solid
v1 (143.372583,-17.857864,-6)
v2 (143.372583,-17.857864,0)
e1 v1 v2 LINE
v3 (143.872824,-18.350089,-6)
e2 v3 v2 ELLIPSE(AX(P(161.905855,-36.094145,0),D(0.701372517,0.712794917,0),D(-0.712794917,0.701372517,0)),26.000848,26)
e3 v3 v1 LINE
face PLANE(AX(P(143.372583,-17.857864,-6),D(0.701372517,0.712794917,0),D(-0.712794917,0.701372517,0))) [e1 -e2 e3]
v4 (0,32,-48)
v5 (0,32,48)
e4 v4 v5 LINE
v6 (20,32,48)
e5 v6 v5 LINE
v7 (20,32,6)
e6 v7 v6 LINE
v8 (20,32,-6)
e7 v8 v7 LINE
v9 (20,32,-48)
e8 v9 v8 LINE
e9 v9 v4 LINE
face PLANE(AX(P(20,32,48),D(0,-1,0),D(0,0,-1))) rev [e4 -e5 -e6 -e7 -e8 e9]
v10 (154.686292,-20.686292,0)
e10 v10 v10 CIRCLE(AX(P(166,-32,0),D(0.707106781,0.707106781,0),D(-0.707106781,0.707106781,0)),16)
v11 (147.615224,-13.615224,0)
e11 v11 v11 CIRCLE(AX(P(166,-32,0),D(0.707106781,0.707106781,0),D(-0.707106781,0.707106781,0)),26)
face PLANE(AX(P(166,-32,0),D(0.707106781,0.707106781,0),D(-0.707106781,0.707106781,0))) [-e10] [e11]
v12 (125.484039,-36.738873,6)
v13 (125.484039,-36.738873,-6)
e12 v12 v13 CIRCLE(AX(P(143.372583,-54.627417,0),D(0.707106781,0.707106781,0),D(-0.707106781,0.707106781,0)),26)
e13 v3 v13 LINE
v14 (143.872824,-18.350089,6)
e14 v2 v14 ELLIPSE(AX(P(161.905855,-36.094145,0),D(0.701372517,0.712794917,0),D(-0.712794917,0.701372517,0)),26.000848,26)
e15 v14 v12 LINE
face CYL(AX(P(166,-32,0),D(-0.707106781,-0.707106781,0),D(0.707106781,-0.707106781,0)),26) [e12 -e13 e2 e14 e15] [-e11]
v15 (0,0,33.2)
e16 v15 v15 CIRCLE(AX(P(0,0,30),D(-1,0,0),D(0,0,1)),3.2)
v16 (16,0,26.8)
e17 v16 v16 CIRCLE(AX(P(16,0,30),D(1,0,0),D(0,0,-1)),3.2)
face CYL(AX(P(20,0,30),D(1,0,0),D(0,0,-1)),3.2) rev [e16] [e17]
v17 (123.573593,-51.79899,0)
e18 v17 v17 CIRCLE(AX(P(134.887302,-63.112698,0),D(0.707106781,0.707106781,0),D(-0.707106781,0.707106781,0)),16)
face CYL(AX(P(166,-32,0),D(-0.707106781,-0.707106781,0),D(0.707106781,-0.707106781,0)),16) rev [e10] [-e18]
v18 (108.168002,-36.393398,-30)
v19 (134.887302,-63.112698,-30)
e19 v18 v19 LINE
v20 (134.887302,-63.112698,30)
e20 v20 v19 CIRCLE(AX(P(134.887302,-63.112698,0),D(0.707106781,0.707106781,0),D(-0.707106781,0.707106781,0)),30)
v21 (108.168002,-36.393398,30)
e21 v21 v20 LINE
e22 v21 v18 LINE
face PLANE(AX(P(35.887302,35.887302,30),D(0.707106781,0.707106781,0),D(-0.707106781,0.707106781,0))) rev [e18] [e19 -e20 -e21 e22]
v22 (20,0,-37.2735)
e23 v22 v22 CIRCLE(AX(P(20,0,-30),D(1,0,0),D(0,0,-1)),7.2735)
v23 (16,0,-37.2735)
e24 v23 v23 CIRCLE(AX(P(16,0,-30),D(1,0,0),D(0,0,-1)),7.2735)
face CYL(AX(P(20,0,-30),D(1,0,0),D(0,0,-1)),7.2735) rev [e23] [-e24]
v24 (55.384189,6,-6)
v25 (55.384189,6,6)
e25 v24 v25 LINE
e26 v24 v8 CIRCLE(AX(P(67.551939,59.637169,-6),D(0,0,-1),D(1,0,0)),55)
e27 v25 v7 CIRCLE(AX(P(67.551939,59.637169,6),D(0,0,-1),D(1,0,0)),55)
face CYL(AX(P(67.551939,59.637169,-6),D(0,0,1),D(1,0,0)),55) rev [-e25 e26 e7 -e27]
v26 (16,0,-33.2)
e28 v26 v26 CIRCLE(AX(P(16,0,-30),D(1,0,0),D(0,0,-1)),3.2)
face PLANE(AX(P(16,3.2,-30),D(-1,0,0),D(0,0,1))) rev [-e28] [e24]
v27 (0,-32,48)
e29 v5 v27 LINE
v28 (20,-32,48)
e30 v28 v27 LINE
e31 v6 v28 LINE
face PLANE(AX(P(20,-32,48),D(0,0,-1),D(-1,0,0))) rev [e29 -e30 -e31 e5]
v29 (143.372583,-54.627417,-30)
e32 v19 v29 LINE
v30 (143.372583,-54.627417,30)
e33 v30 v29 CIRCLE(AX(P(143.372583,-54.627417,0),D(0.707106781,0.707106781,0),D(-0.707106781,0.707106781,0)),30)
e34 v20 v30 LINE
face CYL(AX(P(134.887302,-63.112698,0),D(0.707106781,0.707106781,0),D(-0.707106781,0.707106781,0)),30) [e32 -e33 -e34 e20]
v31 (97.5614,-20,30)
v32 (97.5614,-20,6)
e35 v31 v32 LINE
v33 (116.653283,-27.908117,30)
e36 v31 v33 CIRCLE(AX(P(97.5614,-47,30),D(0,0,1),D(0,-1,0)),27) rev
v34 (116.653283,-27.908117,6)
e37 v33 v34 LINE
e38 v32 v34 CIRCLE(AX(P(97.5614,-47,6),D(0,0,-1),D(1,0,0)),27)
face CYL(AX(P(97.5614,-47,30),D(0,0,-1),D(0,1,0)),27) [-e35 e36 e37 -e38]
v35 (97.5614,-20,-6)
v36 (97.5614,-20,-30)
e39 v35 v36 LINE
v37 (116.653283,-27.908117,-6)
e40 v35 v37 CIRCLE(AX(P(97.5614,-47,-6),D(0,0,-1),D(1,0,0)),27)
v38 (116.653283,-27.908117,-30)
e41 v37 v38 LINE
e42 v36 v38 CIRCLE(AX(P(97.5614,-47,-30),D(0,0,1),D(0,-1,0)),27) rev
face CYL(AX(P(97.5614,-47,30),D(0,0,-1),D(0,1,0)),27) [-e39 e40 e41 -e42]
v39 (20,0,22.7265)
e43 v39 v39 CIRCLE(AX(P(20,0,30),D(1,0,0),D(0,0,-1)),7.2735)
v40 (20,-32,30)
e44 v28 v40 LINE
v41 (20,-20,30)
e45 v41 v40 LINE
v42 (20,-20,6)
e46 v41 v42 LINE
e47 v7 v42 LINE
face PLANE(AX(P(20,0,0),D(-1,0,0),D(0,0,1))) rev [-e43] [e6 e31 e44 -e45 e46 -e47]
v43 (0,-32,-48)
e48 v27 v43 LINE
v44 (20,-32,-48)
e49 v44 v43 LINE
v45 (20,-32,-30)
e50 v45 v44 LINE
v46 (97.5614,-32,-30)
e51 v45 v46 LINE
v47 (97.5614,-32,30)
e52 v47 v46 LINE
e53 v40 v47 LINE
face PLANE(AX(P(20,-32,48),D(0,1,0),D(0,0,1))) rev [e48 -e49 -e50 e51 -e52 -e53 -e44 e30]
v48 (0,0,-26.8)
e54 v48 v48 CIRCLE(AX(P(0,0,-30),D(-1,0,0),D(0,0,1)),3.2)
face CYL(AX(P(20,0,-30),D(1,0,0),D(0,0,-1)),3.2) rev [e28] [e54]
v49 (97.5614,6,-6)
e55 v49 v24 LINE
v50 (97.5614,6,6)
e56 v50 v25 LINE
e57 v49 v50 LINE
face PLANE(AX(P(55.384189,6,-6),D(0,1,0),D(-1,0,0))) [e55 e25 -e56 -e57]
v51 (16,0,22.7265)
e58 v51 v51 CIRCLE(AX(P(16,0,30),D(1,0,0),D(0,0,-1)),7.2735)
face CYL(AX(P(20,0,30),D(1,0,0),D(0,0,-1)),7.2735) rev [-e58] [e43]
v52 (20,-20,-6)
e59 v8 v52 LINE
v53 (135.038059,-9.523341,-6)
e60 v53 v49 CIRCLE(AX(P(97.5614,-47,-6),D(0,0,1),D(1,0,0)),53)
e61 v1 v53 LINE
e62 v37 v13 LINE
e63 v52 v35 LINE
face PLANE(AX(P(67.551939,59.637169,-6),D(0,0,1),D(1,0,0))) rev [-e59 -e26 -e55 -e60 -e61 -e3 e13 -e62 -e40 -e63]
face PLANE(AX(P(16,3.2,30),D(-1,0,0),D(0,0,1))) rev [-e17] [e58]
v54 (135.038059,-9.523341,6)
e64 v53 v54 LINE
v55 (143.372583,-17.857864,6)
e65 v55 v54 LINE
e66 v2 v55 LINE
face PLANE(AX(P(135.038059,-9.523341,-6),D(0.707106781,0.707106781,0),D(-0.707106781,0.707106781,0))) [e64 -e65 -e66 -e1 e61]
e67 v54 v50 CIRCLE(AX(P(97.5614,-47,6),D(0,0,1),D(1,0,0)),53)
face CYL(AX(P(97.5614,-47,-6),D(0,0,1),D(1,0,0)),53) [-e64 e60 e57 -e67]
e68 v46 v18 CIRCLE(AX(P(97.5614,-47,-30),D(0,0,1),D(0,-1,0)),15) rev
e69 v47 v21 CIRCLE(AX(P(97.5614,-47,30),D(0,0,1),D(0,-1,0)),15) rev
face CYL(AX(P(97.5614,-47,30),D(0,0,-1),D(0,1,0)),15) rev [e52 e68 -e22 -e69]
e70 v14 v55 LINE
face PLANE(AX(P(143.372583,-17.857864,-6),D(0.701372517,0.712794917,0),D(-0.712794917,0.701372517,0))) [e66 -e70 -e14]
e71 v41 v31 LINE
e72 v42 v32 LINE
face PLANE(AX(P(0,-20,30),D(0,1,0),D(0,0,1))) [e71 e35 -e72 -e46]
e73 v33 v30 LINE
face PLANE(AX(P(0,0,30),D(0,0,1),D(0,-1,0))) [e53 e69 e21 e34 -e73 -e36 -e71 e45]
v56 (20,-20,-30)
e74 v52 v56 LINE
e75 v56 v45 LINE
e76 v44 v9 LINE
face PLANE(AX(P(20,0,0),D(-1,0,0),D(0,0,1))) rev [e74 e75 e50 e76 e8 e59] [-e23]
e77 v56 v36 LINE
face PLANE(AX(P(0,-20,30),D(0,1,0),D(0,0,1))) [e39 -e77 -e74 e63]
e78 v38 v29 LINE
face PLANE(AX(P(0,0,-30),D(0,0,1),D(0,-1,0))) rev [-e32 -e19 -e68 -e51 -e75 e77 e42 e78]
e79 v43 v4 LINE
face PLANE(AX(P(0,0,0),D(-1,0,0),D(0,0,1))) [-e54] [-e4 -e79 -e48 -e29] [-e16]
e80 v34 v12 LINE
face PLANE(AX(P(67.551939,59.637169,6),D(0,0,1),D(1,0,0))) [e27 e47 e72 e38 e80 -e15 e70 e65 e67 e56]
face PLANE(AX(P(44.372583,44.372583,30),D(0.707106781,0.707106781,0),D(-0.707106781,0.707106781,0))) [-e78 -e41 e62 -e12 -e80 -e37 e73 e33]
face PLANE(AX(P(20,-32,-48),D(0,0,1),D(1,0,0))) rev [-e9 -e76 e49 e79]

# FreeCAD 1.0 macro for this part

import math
import FreeCAD as App
import Part
import Sketcher
Q = App.Units.Quantity

doc = App.newDocument("Part")
body = doc.addObject("PartDesign::Body", "Body")

sketch1 = body.newObject("Sketcher::SketchObject", "Sketch")
sketch1.AttachmentSupport = (doc.getObject("YZ_Plane"), [""])
sketch1.MapMode = "FlatFace"
sketch1.addGeometry([
    Part.LineSegment(App.Vector(32, 48, 0), App.Vector(-32, 48, 0)),
    Part.LineSegment(App.Vector(-32, 48, 0), App.Vector(-32, -48, 0)),
    Part.LineSegment(App.Vector(-32, -48, 0), App.Vector(32, -48, 0)),
    Part.LineSegment(App.Vector(32, -48, 0), App.Vector(32, 48, 0)),
], False)
sketch1.addConstraint([
    Sketcher.Constraint("Coincident", 0, 2, 1, 1),
    Sketcher.Constraint("Coincident", 1, 2, 2, 1),
    Sketcher.Constraint("Coincident", 2, 2, 3, 1),
    Sketcher.Constraint("Coincident", 3, 2, 0, 1),
    Sketcher.Constraint("Horizontal", 0),
    Sketcher.Constraint("Vertical", 1),
    Sketcher.Constraint("Horizontal", 2),
    Sketcher.Constraint("Vertical", 3),
    Sketcher.Constraint("Symmetric", 0, 2, 2, 2, -1, 1),
    Sketcher.Constraint("DistanceX", 0, 2, 0, 1, 64.0),
    Sketcher.Constraint("DistanceY", 1, 2, 1, 1, 96.0),
])
pad1 = body.newObject("PartDesign::Pad", "Pad")
pad1.Profile = sketch1
pad1.Length = 20

sketch2 = body.newObject("Sketcher::SketchObject", "Sketch001")
sketch2.AttachmentSupport = (doc.getObject("YZ_Plane"), [""])
sketch2.MapMode = "FlatFace"
sketch2.AttachmentOffset = App.Placement(App.Vector(0, 0, 20), App.Rotation())
sketch2.addGeometry(Part.Circle(App.Vector(0, -30, 0), App.Vector(0, 0, 1), 3.2), False)
sketch2.addConstraint([
    Sketcher.Constraint("PointOnObject", 0, 3, -2),
    Sketcher.Constraint("Diameter", 0, 6.4),
    Sketcher.Constraint("DistanceY", 0, 3, -1, 1, 30.0),
])
doc.recompute()
hole = body.newObject("PartDesign::Hole", "Hole")
hole.Profile = sketch2
hole.ThreadType = "None"
hole.Diameter = 6.4
hole.DepthType = "ThroughAll"
hole.HoleCutType = "Counterbore"
hole.HoleCutDiameter = 14.547
hole.HoleCutDepth = 4
doc.recompute()

mirrored = body.newObject("PartDesign::Mirrored", "Mirrored")
mirrored.Originals = [hole]
mirrored.MirrorPlane = (doc.getObject("XY_Plane"), [""])
body.Tip = mirrored

sketch3 = body.newObject("Sketcher::SketchObject", "Sketch002")
sketch3.AttachmentSupport = (doc.getObject("XY_Plane"), [""])
sketch3.MapMode = "FlatFace"
sketch3.AttachmentOffset = App.Placement(App.Vector(0, 0, -30), App.Rotation())
sketch3.addGeometry([
    Part.ArcOfCircle(Part.Circle(App.Vector(97.5614, -47, 0), App.Vector(0, 0, 1), 27), math.radians(45), math.radians(90)),
    Part.LineSegment(App.Vector(97.5614, -20, 0), App.Vector(20, -20, 0)),
    Part.LineSegment(App.Vector(20, -20, 0), App.Vector(20, -32, 0)),
    Part.LineSegment(App.Vector(20, -32, 0), App.Vector(97.5614, -32, 0)),
    Part.ArcOfCircle(Part.Circle(App.Vector(97.5614, -47, 0), App.Vector(0, 0, 1), 15), math.radians(45), math.radians(90)),
    Part.LineSegment(App.Vector(108.168002, -36.393398, 0), App.Vector(156.100505, -84.325902, 0)),
    Part.LineSegment(App.Vector(156.100505, -84.325902, 0), App.Vector(164.585786, -75.84062, 0)),
    Part.LineSegment(App.Vector(164.585786, -75.84062, 0), App.Vector(116.653283, -27.908117, 0)),
], False)
sketch3.addConstraint([
    Sketcher.Constraint("Tangent", 0, 2, 1, 1),
    Sketcher.Constraint("Coincident", 1, 2, 2, 1),
    Sketcher.Constraint("Coincident", 2, 2, 3, 1),
    Sketcher.Constraint("Tangent", 3, 2, 4, 2),
    Sketcher.Constraint("Tangent", 4, 1, 5, 1),
    Sketcher.Constraint("Coincident", 5, 2, 6, 1),
    Sketcher.Constraint("Coincident", 6, 2, 7, 1),
    Sketcher.Constraint("Tangent", 7, 2, 0, 1),
    Sketcher.Constraint("Horizontal", 1),
    Sketcher.Constraint("Vertical", 2),
    Sketcher.Constraint("Horizontal", 3),
    Sketcher.Constraint("Coincident", 4, 3, 0, 3),
    Sketcher.Constraint("Perpendicular", 5, 6),
    Sketcher.Constraint("Perpendicular", 6, 7),
    Sketcher.Constraint("Radius", 0, 27.0),
    Sketcher.Constraint("Radius", 4, 15.0),
    Sketcher.Constraint("Angle", 5, Q("-45 deg")),
    Sketcher.Constraint("DistanceY", 0, 3, -1, 1, 47.0),
    Sketcher.Constraint("DistanceX", -1, 1, 1, 2, 20.0),
    Sketcher.Constraint("DistanceX", 1, 2, 1, 1, 77.5614),
    Sketcher.Constraint("DistanceY", 5, 2, -1, 1, 84.325902),
])
pad2 = body.newObject("PartDesign::Pad", "Pad001")
pad2.Profile = sketch3
pad2.Length = 60

sketch4 = body.newObject("Sketcher::SketchObject", "Sketch003")
sketch4.Placement = App.Placement(App.Vector(44.372583, 44.372583, 0), App.Rotation(App.Vector(0, 0, -1), App.Vector(-0.707106781, 0.707106781, 0), App.Vector(0.707106781, 0.707106781, 0), "ZXY"))
sketch4.addGeometry([
    Part.LineSegment(App.Vector(-30, -140.007143, 0), App.Vector(-38.734921, -140.007143, 0)),
    Part.LineSegment(App.Vector(-38.734921, -140.007143, 0), App.Vector(-38.734921, -179.207033, 0)),
    Part.LineSegment(App.Vector(-38.734921, -179.207033, 0), App.Vector(30.889897, -179.207033, 0)),
    Part.LineSegment(App.Vector(30.889897, -179.207033, 0), App.Vector(30.889897, -140.007143, 0)),
    Part.LineSegment(App.Vector(30.889897, -140.007143, 0), App.Vector(30, -140.007143, 0)),
    Part.ArcOfCircle(Part.Circle(App.Vector(0, -140.007143, 0), App.Vector(0, 0, 1), 30), math.radians(180), math.radians(360)),
], False)
sketch4.addConstraint([
    Sketcher.Constraint("Coincident", 0, 2, 1, 1),
    Sketcher.Constraint("Coincident", 1, 2, 2, 1),
    Sketcher.Constraint("Coincident", 2, 2, 3, 1),
    Sketcher.Constraint("Coincident", 3, 2, 4, 1),
    Sketcher.Constraint("Coincident", 4, 2, 5, 2),
    Sketcher.Constraint("Coincident", 5, 1, 0, 1),
    Sketcher.Constraint("Horizontal", 0),
    Sketcher.Constraint("Vertical", 1),
    Sketcher.Constraint("Horizontal", 2),
    Sketcher.Constraint("Vertical", 3),
    Sketcher.Constraint("Horizontal", 4),
    Sketcher.Constraint("Symmetric", 4, 2, 5, 1, -2),
    Sketcher.Constraint("Horizontal", 5, 3, 0, 2),
    Sketcher.Constraint("Radius", 5, 30.0),
    Sketcher.Constraint("DistanceX", 0, 2, 0, 1, 8.734921),
    Sketcher.Constraint("DistanceY", 1, 2, 1, 1, 39.19989),
    Sketcher.Constraint("DistanceX", 2, 1, 2, 2, 69.624817),
    Sketcher.Constraint("DistanceY", 5, 3, -1, 1, 140.007143),
])
pocket1 = body.newObject("PartDesign::Pocket", "Pocket")
pocket1.Profile = sketch4
pocket1.Length = 12

sketch5 = body.newObject("Sketcher::SketchObject", "Sketch004")
sketch5.Placement = App.Placement(App.Vector(44.372583, 44.372583, 0), App.Rotation(App.Vector(0, 0, -1), App.Vector(-0.707106781, 0.707106781, 0), App.Vector(0.707106781, 0.707106781, 0), "ZXY"))
sketch5.addGeometry([
    Part.Circle(App.Vector(0, -140.007143, 0), App.Vector(0, 0, 1), 26),
    Part.Circle(App.Vector(0, -140.007143, 0), App.Vector(0, 0, 1), 16),
], False)
sketch5.addConstraint([
    Sketcher.Constraint("Coincident", 1, 3, 0, 3),
    Sketcher.Constraint("PointOnObject", 0, 3, -2),
    Sketcher.Constraint("Diameter", 0, 52.0),
    Sketcher.Constraint("Diameter", 1, 32.0),
    Sketcher.Constraint("DistanceY", 0, 3, -1, 1, 140.007143),
])
pad3 = body.newObject("PartDesign::Pad", "Pad002")
pad3.Profile = sketch5
pad3.Length = 32

sketch6 = body.newObject("Sketcher::SketchObject", "Sketch005")
sketch6.AttachmentSupport = (doc.getObject("XY_Plane"), [""])
sketch6.MapMode = "FlatFace"
sketch6.AttachmentOffset = App.Placement(App.Vector(0, 0, -6), App.Rotation())
sketch6.addGeometry([
    Part.LineSegment(App.Vector(20, 32, 0), App.Vector(20, -20, 0)),
    Part.LineSegment(App.Vector(20, -20, 0), App.Vector(97.5614, -20, 0)),
    Part.ArcOfCircle(Part.Circle(App.Vector(97.5614, -47, 0), App.Vector(0, 0, 1), 27), math.radians(45), math.radians(90)),
    Part.LineSegment(App.Vector(116.653283, -27.908117, 0), App.Vector(132.712453, -43.967287, 0)),
    Part.LineSegment(App.Vector(132.712453, -43.967287, 0), App.Vector(151.159622, -25.520117, 0)),
    Part.LineSegment(App.Vector(151.159622, -25.520117, 0), App.Vector(143.372583, -17.857864, 0)),
    Part.LineSegment(App.Vector(143.372583, -17.857864, 0), App.Vector(135.038059, -9.523341, 0)),
    Part.ArcOfCircle(Part.Circle(App.Vector(97.5614, -47, 0), App.Vector(0, 0, 1), 53), math.radians(45), math.radians(90)),
    Part.LineSegment(App.Vector(97.5614, 6, 0), App.Vector(55.384189, 6, 0)),
    Part.ArcOfCircle(Part.Circle(App.Vector(67.551939, 59.637169, 0), App.Vector(0, 0, 1), 55), math.radians(-149.834862), math.radians(-102.781394)),
], False)
sketch6.addConstraint([
    Sketcher.Constraint("Coincident", 0, 2, 1, 1),
    Sketcher.Constraint("Tangent", 1, 2, 2, 2),
    Sketcher.Constraint("Tangent", 2, 1, 3, 1),
    Sketcher.Constraint("Coincident", 3, 2, 4, 1),
    Sketcher.Constraint("Coincident", 4, 2, 5, 1),
    Sketcher.Constraint("Coincident", 5, 2, 6, 1),
    Sketcher.Constraint("Tangent", 6, 2, 7, 1),
    Sketcher.Constraint("Tangent", 7, 2, 8, 1),
    Sketcher.Constraint("Coincident", 8, 2, 9, 2),
    Sketcher.Constraint("Coincident", 9, 1, 0, 1),
    Sketcher.Constraint("Vertical", 0),
    Sketcher.Constraint("Horizontal", 1),
    Sketcher.Constraint("Horizontal", 8),
    Sketcher.Constraint("Coincident", 7, 3, 2, 3),
    Sketcher.Constraint("Perpendicular", 3, 4),
    Sketcher.Constraint("Perpendicular", 4, 6),
    Sketcher.Constraint("Radius", 2, 27.0),
    Sketcher.Constraint("Radius", 7, 53.0),
    Sketcher.Constraint("Radius", 9, 55.0),
    Sketcher.Constraint("DistanceY", 0, 2, 0, 1, 52.0),
    Sketcher.Constraint("Angle", 3, Q("-45 deg")),
    Sketcher.Constraint("DistanceY", 2, 3, -1, 1, 47.0),
    Sketcher.Constraint("DistanceX", -1, 1, 0, 2, 20.0),
    Sketcher.Constraint("DistanceX", 1, 1, 1, 2, 77.5614),
    Sketcher.Constraint("DistanceY", 2, 1, 4, 2, 2.387999),
    Sketcher.Constraint("DistanceX", 8, 2, 8, 1, 42.177211),
    Sketcher.Constraint("DistanceX", 2, 1, 5, 2, 26.7193),
    Sketcher.Constraint("DistanceX", -1, 1, 4, 2, 151.159622),
])
pad4 = body.newObject("PartDesign::Pad", "Pad003")
pad4.Profile = sketch6
pad4.Length = 12

sketch7 = body.newObject("Sketcher::SketchObject", "Sketch006")
sketch7.Placement = App.Placement(App.Vector(67, 67, 0), App.Rotation(App.Vector(0, 0, -1), App.Vector(-0.707106781, 0.707106781, 0), App.Vector(0.707106781, 0.707106781, 0), "ZXY"))
sketch7.addGeometry(Part.Circle(App.Vector(0, -140.007143, 0), App.Vector(0, 0, 1), 16), False)
sketch7.addConstraint([
    Sketcher.Constraint("PointOnObject", 0, 3, -2),
    Sketcher.Constraint("Diameter", 0, 32.0),
    Sketcher.Constraint("DistanceY", 0, 3, -1, 1, 140.007143),
])
pocket2 = body.newObject("PartDesign::Pocket", "Pocket001")
pocket2.Profile = sketch7
pocket2.Type = "ThroughAll"

doc.recompute()
